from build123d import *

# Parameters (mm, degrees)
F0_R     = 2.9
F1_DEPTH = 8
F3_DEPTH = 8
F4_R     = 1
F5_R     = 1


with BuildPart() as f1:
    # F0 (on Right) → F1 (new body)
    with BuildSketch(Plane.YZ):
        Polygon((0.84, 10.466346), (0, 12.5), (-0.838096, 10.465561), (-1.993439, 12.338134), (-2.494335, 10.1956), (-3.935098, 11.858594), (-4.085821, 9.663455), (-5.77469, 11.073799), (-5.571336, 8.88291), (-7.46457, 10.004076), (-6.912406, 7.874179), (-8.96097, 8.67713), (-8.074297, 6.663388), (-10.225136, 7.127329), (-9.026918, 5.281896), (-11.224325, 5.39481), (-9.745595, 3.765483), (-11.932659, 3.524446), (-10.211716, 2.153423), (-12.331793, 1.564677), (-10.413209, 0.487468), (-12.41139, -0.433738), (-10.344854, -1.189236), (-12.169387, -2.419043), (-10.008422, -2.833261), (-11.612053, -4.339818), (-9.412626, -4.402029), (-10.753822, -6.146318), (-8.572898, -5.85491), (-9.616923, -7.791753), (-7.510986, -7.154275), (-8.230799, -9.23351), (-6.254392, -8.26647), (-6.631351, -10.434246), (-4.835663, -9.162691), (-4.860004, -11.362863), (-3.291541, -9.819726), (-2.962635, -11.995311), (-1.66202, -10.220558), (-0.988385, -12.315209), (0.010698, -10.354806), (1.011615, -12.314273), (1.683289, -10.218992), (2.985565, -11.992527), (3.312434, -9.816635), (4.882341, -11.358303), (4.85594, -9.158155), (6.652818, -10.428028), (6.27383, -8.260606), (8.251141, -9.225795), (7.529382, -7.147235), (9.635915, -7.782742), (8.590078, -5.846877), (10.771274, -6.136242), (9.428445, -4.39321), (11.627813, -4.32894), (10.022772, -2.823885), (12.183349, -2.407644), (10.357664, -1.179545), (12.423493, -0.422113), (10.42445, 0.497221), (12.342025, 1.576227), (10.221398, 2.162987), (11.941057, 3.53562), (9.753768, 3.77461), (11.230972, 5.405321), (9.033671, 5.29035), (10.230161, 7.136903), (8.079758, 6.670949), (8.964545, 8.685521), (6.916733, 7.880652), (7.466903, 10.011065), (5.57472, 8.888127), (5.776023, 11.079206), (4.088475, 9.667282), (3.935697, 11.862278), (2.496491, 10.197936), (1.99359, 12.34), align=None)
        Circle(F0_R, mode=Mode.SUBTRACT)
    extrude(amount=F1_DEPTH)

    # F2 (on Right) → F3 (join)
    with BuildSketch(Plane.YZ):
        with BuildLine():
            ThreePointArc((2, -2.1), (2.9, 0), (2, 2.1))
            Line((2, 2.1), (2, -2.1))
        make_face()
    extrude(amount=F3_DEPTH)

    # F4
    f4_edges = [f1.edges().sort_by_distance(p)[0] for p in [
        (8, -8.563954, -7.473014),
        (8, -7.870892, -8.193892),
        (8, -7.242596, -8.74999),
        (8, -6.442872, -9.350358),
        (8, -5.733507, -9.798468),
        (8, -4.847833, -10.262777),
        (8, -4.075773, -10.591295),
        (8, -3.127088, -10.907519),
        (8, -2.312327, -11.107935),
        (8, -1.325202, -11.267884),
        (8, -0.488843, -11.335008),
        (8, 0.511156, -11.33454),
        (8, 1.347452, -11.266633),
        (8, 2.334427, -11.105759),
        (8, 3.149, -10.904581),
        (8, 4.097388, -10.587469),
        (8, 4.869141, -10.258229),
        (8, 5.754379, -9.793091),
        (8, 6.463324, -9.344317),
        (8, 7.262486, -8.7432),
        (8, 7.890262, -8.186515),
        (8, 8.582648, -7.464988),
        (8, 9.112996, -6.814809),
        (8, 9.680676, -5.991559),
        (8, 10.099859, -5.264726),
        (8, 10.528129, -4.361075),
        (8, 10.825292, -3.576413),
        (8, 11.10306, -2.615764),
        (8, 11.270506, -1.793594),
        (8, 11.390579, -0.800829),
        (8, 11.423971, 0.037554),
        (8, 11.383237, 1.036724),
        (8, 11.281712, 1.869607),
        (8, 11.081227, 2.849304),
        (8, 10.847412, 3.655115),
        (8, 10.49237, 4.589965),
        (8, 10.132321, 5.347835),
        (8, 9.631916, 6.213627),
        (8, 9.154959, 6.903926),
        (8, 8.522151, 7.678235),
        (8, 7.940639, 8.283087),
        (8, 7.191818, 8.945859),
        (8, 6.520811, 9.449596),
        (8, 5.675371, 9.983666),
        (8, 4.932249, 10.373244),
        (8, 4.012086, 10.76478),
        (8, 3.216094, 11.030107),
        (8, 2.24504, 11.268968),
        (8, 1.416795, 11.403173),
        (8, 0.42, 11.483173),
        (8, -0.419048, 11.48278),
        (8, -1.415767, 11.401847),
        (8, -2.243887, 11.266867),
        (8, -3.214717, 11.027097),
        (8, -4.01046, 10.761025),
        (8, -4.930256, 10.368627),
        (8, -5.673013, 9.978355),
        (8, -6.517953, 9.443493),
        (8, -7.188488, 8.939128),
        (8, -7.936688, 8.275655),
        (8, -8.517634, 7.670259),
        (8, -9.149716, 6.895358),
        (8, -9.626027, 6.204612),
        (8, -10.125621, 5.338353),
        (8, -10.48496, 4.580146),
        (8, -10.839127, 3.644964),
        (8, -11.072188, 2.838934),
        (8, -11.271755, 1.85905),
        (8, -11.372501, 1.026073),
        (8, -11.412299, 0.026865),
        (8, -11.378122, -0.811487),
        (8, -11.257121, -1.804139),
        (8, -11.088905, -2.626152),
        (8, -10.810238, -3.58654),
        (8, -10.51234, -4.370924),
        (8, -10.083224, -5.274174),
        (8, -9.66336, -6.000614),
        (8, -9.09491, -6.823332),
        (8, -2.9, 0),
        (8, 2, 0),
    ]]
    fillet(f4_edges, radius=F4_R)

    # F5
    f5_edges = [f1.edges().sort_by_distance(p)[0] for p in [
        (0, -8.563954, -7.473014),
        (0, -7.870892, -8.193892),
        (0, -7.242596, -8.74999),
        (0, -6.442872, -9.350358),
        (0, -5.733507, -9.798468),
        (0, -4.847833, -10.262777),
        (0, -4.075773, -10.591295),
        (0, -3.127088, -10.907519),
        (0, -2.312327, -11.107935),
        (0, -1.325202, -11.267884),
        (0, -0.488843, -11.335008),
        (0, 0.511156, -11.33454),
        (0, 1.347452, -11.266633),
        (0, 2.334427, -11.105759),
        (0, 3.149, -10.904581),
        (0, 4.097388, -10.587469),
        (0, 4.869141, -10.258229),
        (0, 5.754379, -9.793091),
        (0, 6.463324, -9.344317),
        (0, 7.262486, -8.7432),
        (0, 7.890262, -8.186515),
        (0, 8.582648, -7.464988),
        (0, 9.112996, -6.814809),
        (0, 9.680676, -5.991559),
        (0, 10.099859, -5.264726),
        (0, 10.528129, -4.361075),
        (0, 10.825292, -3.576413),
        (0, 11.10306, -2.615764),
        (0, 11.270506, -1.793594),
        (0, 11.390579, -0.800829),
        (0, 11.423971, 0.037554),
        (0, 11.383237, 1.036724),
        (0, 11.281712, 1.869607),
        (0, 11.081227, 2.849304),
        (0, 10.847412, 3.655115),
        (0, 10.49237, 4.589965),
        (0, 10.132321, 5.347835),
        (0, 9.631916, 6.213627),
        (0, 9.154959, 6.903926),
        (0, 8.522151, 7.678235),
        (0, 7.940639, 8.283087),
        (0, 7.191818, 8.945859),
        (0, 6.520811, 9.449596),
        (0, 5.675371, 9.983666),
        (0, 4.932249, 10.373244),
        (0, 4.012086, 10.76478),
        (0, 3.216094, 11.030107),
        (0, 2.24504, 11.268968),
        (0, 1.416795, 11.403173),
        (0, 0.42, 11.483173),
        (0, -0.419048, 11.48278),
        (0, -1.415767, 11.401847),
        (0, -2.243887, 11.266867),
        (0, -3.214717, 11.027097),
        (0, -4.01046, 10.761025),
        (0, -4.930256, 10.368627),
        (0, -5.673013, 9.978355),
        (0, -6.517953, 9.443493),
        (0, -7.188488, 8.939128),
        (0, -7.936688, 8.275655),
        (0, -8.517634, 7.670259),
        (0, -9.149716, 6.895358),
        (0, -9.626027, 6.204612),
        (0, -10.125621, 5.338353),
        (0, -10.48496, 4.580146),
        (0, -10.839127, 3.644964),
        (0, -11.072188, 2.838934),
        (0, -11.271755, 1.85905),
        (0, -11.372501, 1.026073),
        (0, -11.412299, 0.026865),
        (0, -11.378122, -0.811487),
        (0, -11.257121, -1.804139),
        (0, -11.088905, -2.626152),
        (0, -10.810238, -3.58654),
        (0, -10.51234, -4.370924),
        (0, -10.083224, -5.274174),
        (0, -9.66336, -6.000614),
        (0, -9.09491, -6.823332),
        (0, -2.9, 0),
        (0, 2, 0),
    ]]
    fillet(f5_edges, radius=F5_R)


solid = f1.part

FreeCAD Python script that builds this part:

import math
import FreeCAD as App
import Part
import Sketcher
from FreeCAD import Vector
Q = App.Units.Quantity


def edges_at(feature, points):
    """Names of the edges that pass closest to the given points."""
    edges = feature.Shape.Edges
    near = lambda p: min(range(len(edges)), key=lambda i: edges[i].distToShape(Part.Vertex(*p))[0])
    return sorted({f"Edge{near(p) + 1}" for p in points})

doc = App.newDocument("Part")
body = doc.addObject("PartDesign::Body", "Body")

# Sketch on YZ plane
sketch1 = body.newObject("Sketcher::SketchObject", "Sketch")
sketch1.AttachmentSupport = (doc.getObject("YZ_Plane"), [""])
sketch1.MapMode = "FlatFace"
sketch1.addGeometry(Part.LineSegment(Vector(0.84, 10.466346, 0), Vector(0, 12.5, 0)), False)
sketch1.addGeometry(Part.LineSegment(Vector(0, 12.5, 0), Vector(-0.838096, 10.465561, 0)), False)
sketch1.addGeometry(Part.LineSegment(Vector(-0.838096, 10.465561, 0), Vector(-1.993439, 12.338134, 0)), False)
sketch1.addGeometry(Part.LineSegment(Vector(-1.993439, 12.338134, 0), Vector(-2.494335, 10.1956, 0)), False)
sketch1.addGeometry(Part.LineSegment(Vector(-2.494335, 10.1956, 0), Vector(-3.935098, 11.858594, 0)), False)
sketch1.addGeometry(Part.LineSegment(Vector(-3.935098, 11.858594, 0), Vector(-4.085821, 9.663455, 0)), False)
sketch1.addGeometry(Part.LineSegment(Vector(-4.085821, 9.663455, 0), Vector(-5.77469, 11.073799, 0)), False)
sketch1.addGeometry(Part.LineSegment(Vector(-5.77469, 11.073799, 0), Vector(-5.571336, 8.88291, 0)), False)
sketch1.addGeometry(Part.LineSegment(Vector(-5.571336, 8.88291, 0), Vector(-7.46457, 10.004076, 0)), False)
sketch1.addGeometry(Part.LineSegment(Vector(-7.46457, 10.004076, 0), Vector(-6.912406, 7.874179, 0)), False)
sketch1.addGeometry(Part.LineSegment(Vector(-6.912406, 7.874179, 0), Vector(-8.96097, 8.67713, 0)), False)
sketch1.addGeometry(Part.LineSegment(Vector(-8.96097, 8.67713, 0), Vector(-8.074297, 6.663388, 0)), False)
sketch1.addGeometry(Part.LineSegment(Vector(-8.074297, 6.663388, 0), Vector(-10.225136, 7.127329, 0)), False)
sketch1.addGeometry(Part.LineSegment(Vector(-10.225136, 7.127329, 0), Vector(-9.026918, 5.281896, 0)), False)
sketch1.addGeometry(Part.LineSegment(Vector(-9.026918, 5.281896, 0), Vector(-11.224325, 5.39481, 0)), False)
sketch1.addGeometry(Part.LineSegment(Vector(-11.224325, 5.39481, 0), Vector(-9.745595, 3.765483, 0)), False)
sketch1.addGeometry(Part.LineSegment(Vector(-9.745595, 3.765483, 0), Vector(-11.932659, 3.524446, 0)), False)
sketch1.addGeometry(Part.LineSegment(Vector(-11.932659, 3.524446, 0), Vector(-10.211716, 2.153423, 0)), False)
sketch1.addGeometry(Part.LineSegment(Vector(-10.211716, 2.153423, 0), Vector(-12.331793, 1.564677, 0)), False)
sketch1.addGeometry(Part.LineSegment(Vector(-12.331793, 1.564677, 0), Vector(-10.413209, 0.487468, 0)), False)
sketch1.addGeometry(Part.LineSegment(Vector(-10.413209, 0.487468, 0), Vector(-12.41139, -0.433738, 0)), False)
sketch1.addGeometry(Part.LineSegment(Vector(-12.41139, -0.433738, 0), Vector(-10.344854, -1.189236, 0)), False)
sketch1.addGeometry(Part.LineSegment(Vector(-10.344854, -1.189236, 0), Vector(-12.169387, -2.419043, 0)), False)
sketch1.addGeometry(Part.LineSegment(Vector(-12.169387, -2.419043, 0), Vector(-10.008422, -2.833261, 0)), False)
sketch1.addGeometry(Part.LineSegment(Vector(-10.008422, -2.833261, 0), Vector(-11.612053, -4.339818, 0)), False)
sketch1.addGeometry(Part.LineSegment(Vector(-11.612053, -4.339818, 0), Vector(-9.412626, -4.402029, 0)), False)
sketch1.addGeometry(Part.LineSegment(Vector(-9.412626, -4.402029, 0), Vector(-10.753822, -6.146318, 0)), False)
sketch1.addGeometry(Part.LineSegment(Vector(-10.753822, -6.146318, 0), Vector(-8.572898, -5.85491, 0)), False)
sketch1.addGeometry(Part.LineSegment(Vector(-8.572898, -5.85491, 0), Vector(-9.616923, -7.791753, 0)), False)
sketch1.addGeometry(Part.LineSegment(Vector(-9.616923, -7.791753, 0), Vector(-7.510986, -7.154275, 0)), False)
sketch1.addGeometry(Part.LineSegment(Vector(-7.510986, -7.154275, 0), Vector(-8.230799, -9.23351, 0)), False)
sketch1.addGeometry(Part.LineSegment(Vector(-8.230799, -9.23351, 0), Vector(-6.254392, -8.26647, 0)), False)
sketch1.addGeometry(Part.LineSegment(Vector(-6.254392, -8.26647, 0), Vector(-6.631351, -10.434246, 0)), False)
sketch1.addGeometry(Part.LineSegment(Vector(-6.631351, -10.434246, 0), Vector(-4.835663, -9.162691, 0)), False)
sketch1.addGeometry(Part.LineSegment(Vector(-4.835663, -9.162691, 0), Vector(-4.860004, -11.362863, 0)), False)
sketch1.addGeometry(Part.LineSegment(Vector(-4.860004, -11.362863, 0), Vector(-3.291541, -9.819726, 0)), False)
sketch1.addGeometry(Part.LineSegment(Vector(-3.291541, -9.819726, 0), Vector(-2.962635, -11.995311, 0)), False)
sketch1.addGeometry(Part.LineSegment(Vector(-2.962635, -11.995311, 0), Vector(-1.66202, -10.220558, 0)), False)
sketch1.addGeometry(Part.LineSegment(Vector(-1.66202, -10.220558, 0), Vector(-0.988385, -12.315209, 0)), False)
sketch1.addGeometry(Part.LineSegment(Vector(-0.988385, -12.315209, 0), Vector(0.010698, -10.354806, 0)), False)
sketch1.addGeometry(Part.LineSegment(Vector(0.010698, -10.354806, 0), Vector(1.011615, -12.314273, 0)), False)
sketch1.addGeometry(Part.LineSegment(Vector(1.011615, -12.314273, 0), Vector(1.683289, -10.218992, 0)), False)
sketch1.addGeometry(Part.LineSegment(Vector(1.683289, -10.218992, 0), Vector(2.985565, -11.992527, 0)), False)
sketch1.addGeometry(Part.LineSegment(Vector(2.985565, -11.992527, 0), Vector(3.312434, -9.816635, 0)), False)
sketch1.addGeometry(Part.LineSegment(Vector(3.312434, -9.816635, 0), Vector(4.882341, -11.358303, 0)), False)
sketch1.addGeometry(Part.LineSegment(Vector(4.882341, -11.358303, 0), Vector(4.85594, -9.158155, 0)), False)
sketch1.addGeometry(Part.LineSegment(Vector(4.85594, -9.158155, 0), Vector(6.652818, -10.428028, 0)), False)
sketch1.addGeometry(Part.LineSegment(Vector(6.652818, -10.428028, 0), Vector(6.27383, -8.260606, 0)), False)
sketch1.addGeometry(Part.LineSegment(Vector(6.27383, -8.260606, 0), Vector(8.251141, -9.225795, 0)), False)
sketch1.addGeometry(Part.LineSegment(Vector(8.251141, -9.225795, 0), Vector(7.529382, -7.147235, 0)), False)
sketch1.addGeometry(Part.LineSegment(Vector(7.529382, -7.147235, 0), Vector(9.635915, -7.782742, 0)), False)
sketch1.addGeometry(Part.LineSegment(Vector(9.635915, -7.782742, 0), Vector(8.590078, -5.846877, 0)), False)
sketch1.addGeometry(Part.LineSegment(Vector(8.590078, -5.846877, 0), Vector(10.771274, -6.136242, 0)), False)
sketch1.addGeometry(Part.LineSegment(Vector(10.771274, -6.136242, 0), Vector(9.428445, -4.39321, 0)), False)
sketch1.addGeometry(Part.LineSegment(Vector(9.428445, -4.39321, 0), Vector(11.627813, -4.32894, 0)), False)
sketch1.addGeometry(Part.LineSegment(Vector(11.627813, -4.32894, 0), Vector(10.022772, -2.823885, 0)), False)
sketch1.addGeometry(Part.LineSegment(Vector(10.022772, -2.823885, 0), Vector(12.183349, -2.407644, 0)), False)
sketch1.addGeometry(Part.LineSegment(Vector(12.183349, -2.407644, 0), Vector(10.357664, -1.179545, 0)), False)
sketch1.addGeometry(Part.LineSegment(Vector(10.357664, -1.179545, 0), Vector(12.423493, -0.422113, 0)), False)
sketch1.addGeometry(Part.LineSegment(Vector(12.423493, -0.422113, 0), Vector(10.42445, 0.497221, 0)), False)
sketch1.addGeometry(Part.LineSegment(Vector(10.42445, 0.497221, 0), Vector(12.342025, 1.576227, 0)), False)
sketch1.addGeometry(Part.LineSegment(Vector(12.342025, 1.576227, 0), Vector(10.221398, 2.162987, 0)), False)
sketch1.addGeometry(Part.LineSegment(Vector(10.221398, 2.162987, 0), Vector(11.941057, 3.53562, 0)), False)
sketch1.addGeometry(Part.LineSegment(Vector(11.941057, 3.53562, 0), Vector(9.753768, 3.77461, 0)), False)
sketch1.addGeometry(Part.LineSegment(Vector(9.753768, 3.77461, 0), Vector(11.230972, 5.405321, 0)), False)
sketch1.addGeometry(Part.LineSegment(Vector(11.230972, 5.405321, 0), Vector(9.033671, 5.29035, 0)), False)
sketch1.addGeometry(Part.LineSegment(Vector(9.033671, 5.29035, 0), Vector(10.230161, 7.136903, 0)), False)
sketch1.addGeometry(Part.LineSegment(Vector(10.230161, 7.136903, 0), Vector(8.079758, 6.670949, 0)), False)
sketch1.addGeometry(Part.LineSegment(Vector(8.079758, 6.670949, 0), Vector(8.964545, 8.685521, 0)), False)
sketch1.addGeometry(Part.LineSegment(Vector(8.964545, 8.685521, 0), Vector(6.916733, 7.880652, 0)), False)
sketch1.addGeometry(Part.LineSegment(Vector(6.916733, 7.880652, 0), Vector(7.466903, 10.011065, 0)), False)
sketch1.addGeometry(Part.LineSegment(Vector(7.466903, 10.011065, 0), Vector(5.57472, 8.888127, 0)), False)
sketch1.addGeometry(Part.LineSegment(Vector(5.57472, 8.888127, 0), Vector(5.776023, 11.079206, 0)), False)
sketch1.addGeometry(Part.LineSegment(Vector(5.776023, 11.079206, 0), Vector(4.088475, 9.667282, 0)), False)
sketch1.addGeometry(Part.LineSegment(Vector(4.088475, 9.667282, 0), Vector(3.935697, 11.862278, 0)), False)
sketch1.addGeometry(Part.LineSegment(Vector(3.935697, 11.862278, 0), Vector(2.496491, 10.197936, 0)), False)
sketch1.addGeometry(Part.LineSegment(Vector(2.496491, 10.197936, 0), Vector(1.99359, 12.34, 0)), False)
sketch1.addGeometry(Part.LineSegment(Vector(1.99359, 12.34, 0), Vector(0.84, 10.466346, 0)), False)
sketch1.addGeometry(Part.Circle(Vector(0, 0, 0), Vector(0, 0, 1), 2.9), False)
sketch1.addConstraint(Sketcher.Constraint("Coincident", 0, 2, 1, 1))
sketch1.addConstraint(Sketcher.Constraint("Coincident", 1, 2, 2, 1))
sketch1.addConstraint(Sketcher.Constraint("Coincident", 2, 2, 3, 1))
sketch1.addConstraint(Sketcher.Constraint("Coincident", 3, 2, 4, 1))
sketch1.addConstraint(Sketcher.Constraint("Coincident", 4, 2, 5, 1))
sketch1.addConstraint(Sketcher.Constraint("Coincident", 5, 2, 6, 1))
sketch1.addConstraint(Sketcher.Constraint("Coincident", 6, 2, 7, 1))
sketch1.addConstraint(Sketcher.Constraint("Coincident", 7, 2, 8, 1))
sketch1.addConstraint(Sketcher.Constraint("Coincident", 8, 2, 9, 1))
sketch1.addConstraint(Sketcher.Constraint("Coincident", 9, 2, 10, 1))
sketch1.addConstraint(Sketcher.Constraint("Coincident", 10, 2, 11, 1))
sketch1.addConstraint(Sketcher.Constraint("Coincident", 11, 2, 12, 1))
sketch1.addConstraint(Sketcher.Constraint("Coincident", 12, 2, 13, 1))
sketch1.addConstraint(Sketcher.Constraint("Coincident", 13, 2, 14, 1))
sketch1.addConstraint(Sketcher.Constraint("Coincident", 14, 2, 15, 1))
sketch1.addConstraint(Sketcher.Constraint("Coincident", 15, 2, 16, 1))
sketch1.addConstraint(Sketcher.Constraint("Coincident", 16, 2, 17, 1))
sketch1.addConstraint(Sketcher.Constraint("Coincident", 17, 2, 18, 1))
sketch1.addConstraint(Sketcher.Constraint("Coincident", 18, 2, 19, 1))
sketch1.addConstraint(Sketcher.Constraint("Coincident", 19, 2, 20, 1))
sketch1.addConstraint(Sketcher.Constraint("Coincident", 20, 2, 21, 1))
sketch1.addConstraint(Sketcher.Constraint("Coincident", 21, 2, 22, 1))
sketch1.addConstraint(Sketcher.Constraint("Coincident", 22, 2, 23, 1))
sketch1.addConstraint(Sketcher.Constraint("Coincident", 23, 2, 24, 1))
sketch1.addConstraint(Sketcher.Constraint("Coincident", 24, 2, 25, 1))
sketch1.addConstraint(Sketcher.Constraint("Coincident", 25, 2, 26, 1))
sketch1.addConstraint(Sketcher.Constraint("Coincident", 26, 2, 27, 1))
sketch1.addConstraint(Sketcher.Constraint("Coincident", 27, 2, 28, 1))
sketch1.addConstraint(Sketcher.Constraint("Coincident", 28, 2, 29, 1))
sketch1.addConstraint(Sketcher.Constraint("Coincident", 29, 2, 30, 1))
sketch1.addConstraint(Sketcher.Constraint("Coincident", 30, 2, 31, 1))
sketch1.addConstraint(Sketcher.Constraint("Coincident", 31, 2, 32, 1))
sketch1.addConstraint(Sketcher.Constraint("Coincident", 32, 2, 33, 1))
sketch1.addConstraint(Sketcher.Constraint("Coincident", 33, 2, 34, 1))
sketch1.addConstraint(Sketcher.Constraint("Coincident", 34, 2, 35, 1))
sketch1.addConstraint(Sketcher.Constraint("Coincident", 35, 2, 36, 1))
sketch1.addConstraint(Sketcher.Constraint("Coincident", 36, 2, 37, 1))
sketch1.addConstraint(Sketcher.Constraint("Coincident", 37, 2, 38, 1))
sketch1.addConstraint(Sketcher.Constraint("Coincident", 38, 2, 39, 1))
sketch1.addConstraint(Sketcher.Constraint("Coincident", 39, 2, 40, 1))
sketch1.addConstraint(Sketcher.Constraint("Coincident", 40, 2, 41, 1))
sketch1.addConstraint(Sketcher.Constraint("Coincident", 41, 2, 42, 1))
sketch1.addConstraint(Sketcher.Constraint("Coincident", 42, 2, 43, 1))
sketch1.addConstraint(Sketcher.Constraint("Coincident", 43, 2, 44, 1))
sketch1.addConstraint(Sketcher.Constraint("Coincident", 44, 2, 45, 1))
sketch1.addConstraint(Sketcher.Constraint("Coincident", 45, 2, 46, 1))
sketch1.addConstraint(Sketcher.Constraint("Coincident", 46, 2, 47, 1))
sketch1.addConstraint(Sketcher.Constraint("Coincident", 47, 2, 48, 1))
sketch1.addConstraint(Sketcher.Constraint("Coincident", 48, 2, 49, 1))
sketch1.addConstraint(Sketcher.Constraint("Coincident", 49, 2, 50, 1))
sketch1.addConstraint(Sketcher.Constraint("Coincident", 50, 2, 51, 1))
sketch1.addConstraint(Sketcher.Constraint("Coincident", 51, 2, 52, 1))
sketch1.addConstraint(Sketcher.Constraint("Coincident", 52, 2, 53, 1))
sketch1.addConstraint(Sketcher.Constraint("Coincident", 53, 2, 54, 1))
sketch1.addConstraint(Sketcher.Constraint("Coincident", 54, 2, 55, 1))
sketch1.addConstraint(Sketcher.Constraint("Coincident", 55, 2, 56, 1))
sketch1.addConstraint(Sketcher.Constraint("Coincident", 56, 2, 57, 1))
sketch1.addConstraint(Sketcher.Constraint("Coincident", 57, 2, 58, 1))
sketch1.addConstraint(Sketcher.Constraint("Coincident", 58, 2, 59, 1))
sketch1.addConstraint(Sketcher.Constraint("Coincident", 59, 2, 60, 1))
sketch1.addConstraint(Sketcher.Constraint("Coincident", 60, 2, 61, 1))
sketch1.addConstraint(Sketcher.Constraint("Coincident", 61, 2, 62, 1))
sketch1.addConstraint(Sketcher.Constraint("Coincident", 62, 2, 63, 1))
sketch1.addConstraint(Sketcher.Constraint("Coincident", 63, 2, 64, 1))
sketch1.addConstraint(Sketcher.Constraint("Coincident", 64, 2, 65, 1))
sketch1.addConstraint(Sketcher.Constraint("Coincident", 65, 2, 66, 1))
sketch1.addConstraint(Sketcher.Constraint("Coincident", 66, 2, 67, 1))
sketch1.addConstraint(Sketcher.Constraint("Coincident", 67, 2, 68, 1))
sketch1.addConstraint(Sketcher.Constraint("Coincident", 68, 2, 69, 1))
sketch1.addConstraint(Sketcher.Constraint("Coincident", 69, 2, 70, 1))
sketch1.addConstraint(Sketcher.Constraint("Coincident", 70, 2, 71, 1))
sketch1.addConstraint(Sketcher.Constraint("Coincident", 71, 2, 72, 1))
sketch1.addConstraint(Sketcher.Constraint("Coincident", 72, 2, 73, 1))
sketch1.addConstraint(Sketcher.Constraint("Coincident", 73, 2, 74, 1))
sketch1.addConstraint(Sketcher.Constraint("Coincident", 74, 2, 75, 1))
sketch1.addConstraint(Sketcher.Constraint("Coincident", 75, 2, 76, 1))
sketch1.addConstraint(Sketcher.Constraint("Coincident", 76, 2, 77, 1))
sketch1.addConstraint(Sketcher.Constraint("Coincident", 77, 2, 0, 1))
sketch1.addConstraint(Sketcher.Constraint("Coincident", 78, 3, -1, 1))
sketch1.addConstraint(Sketcher.Constraint("PointOnObject", 0, 2, -2))
sketch1.addConstraint(Sketcher.Constraint("Diameter", 78, Q("5.8 mm")))
sketch1.addConstraint(Sketcher.Constraint("DistanceY", -1, 1, 0, 2, Q("12.5 mm")))
sketch1.addConstraint(Sketcher.Constraint("DistanceY", -1, 1, 76, 2, Q("12.34 mm")))
sketch1.addConstraint(Sketcher.Constraint("DistanceX", -1, 1, 77, 2, Q("0.84 mm")))
sketch1.addConstraint(Sketcher.Constraint("DistanceY", -1, 1, 3, 2, Q("10.1956 mm")))
sketch1.addConstraint(Sketcher.Constraint("DistanceX", 4, 2, -1, 1, Q("3.935098 mm")))
sketch1.addConstraint(Sketcher.Constraint("DistanceY", -1, 1, 6, 2, Q("11.073799 mm")))
sketch1.addConstraint(Sketcher.Constraint("DistanceX", 30, 2, -1, 1, Q("8.230799 mm")))
sketch1.addConstraint(Sketcher.Constraint("DistanceX", -1, 1, 61, 2, Q("10.221398 mm")))
sketch1.addConstraint(Sketcher.Constraint("DistanceY", -1, 1, 1, 2, Q("10.465561 mm")))
sketch1.addConstraint(Sketcher.Constraint("DistanceX", 2, 2, -1, 1, Q("1.993439 mm")))
sketch1.addConstraint(Sketcher.Constraint("DistanceX", 5, 2, -1, 1, Q("4.085821 mm")))
sketch1.addConstraint(Sketcher.Constraint("DistanceX", 6, 2, -1, 1, Q("5.77469 mm")))
sketch1.addConstraint(Sketcher.Constraint("DistanceY", -1, 1, 7, 2, Q("8.88291 mm")))
sketch1.addConstraint(Sketcher.Constraint("DistanceX", 8, 2, -1, 1, Q("7.46457 mm")))
sketch1.addConstraint(Sketcher.Constraint("DistanceY", -1, 1, 9, 2, Q("7.874179 mm")))
sketch1.addConstraint(Sketcher.Constraint("DistanceX", 10, 2, -1, 1, Q("8.96097 mm")))
sketch1.addConstraint(Sketcher.Constraint("DistanceY", -1, 1, 10, 2, Q("8.67713 mm")))
sketch1.addConstraint(Sketcher.Constraint("DistanceY", -1, 1, 11, 2, Q("6.663388 mm")))
sketch1.addConstraint(Sketcher.Constraint("DistanceY", -1, 1, 12, 2, Q("7.127329 mm")))
sketch1.addConstraint(Sketcher.Constraint("DistanceY", -1, 1, 14, 2, Q("5.39481 mm")))
sketch1.addConstraint(Sketcher.Constraint("DistanceX", 16, 2, -1, 1, Q("11.932659 mm")))
sketch1.addConstraint(Sketcher.Constraint("DistanceX", 19, 2, -1, 1, Q("10.413209 mm")))
sketch1.addConstraint(Sketcher.Constraint("DistanceX", 20, 2, -1, 1, Q("12.41139 mm")))
sketch1.addConstraint(Sketcher.Constraint("DistanceY", 23, 2, -1, 1, Q("2.833261 mm")))
sketch1.addConstraint(Sketcher.Constraint("DistanceY", 24, 2, -1, 1, Q("4.339818 mm")))
sketch1.addConstraint(Sketcher.Constraint("DistanceY", 25, 2, -1, 1, Q("4.402029 mm")))
sketch1.addConstraint(Sketcher.Constraint("DistanceY", 27, 2, -1, 1, Q("5.85491 mm")))
sketch1.addConstraint(Sketcher.Constraint("DistanceY", 30, 2, -1, 1, Q("9.23351 mm")))
sketch1.addConstraint(Sketcher.Constraint("DistanceY", 31, 2, -1, 1, Q("8.26647 mm")))
sketch1.addConstraint(Sketcher.Constraint("DistanceX", 32, 2, -1, 1, Q("6.631351 mm")))
sketch1.addConstraint(Sketcher.Constraint("DistanceY", 33, 2, -1, 1, Q("9.162691 mm")))
sketch1.addConstraint(Sketcher.Constraint("DistanceX", 35, 2, -1, 1, Q("3.291541 mm")))
sketch1.addConstraint(Sketcher.Constraint("DistanceY", 36, 2, -1, 1, Q("11.995311 mm")))
sketch1.addConstraint(Sketcher.Constraint("DistanceX", 37, 2, -1, 1, Q("1.66202 mm")))
sketch1.addConstraint(Sketcher.Constraint("DistanceY", 38, 2, -1, 1, Q("12.315209 mm")))
sketch1.addConstraint(Sketcher.Constraint("DistanceX", -1, 1, 41, 2, Q("1.683289 mm")))
sketch1.addConstraint(Sketcher.Constraint("DistanceX", -1, 1, 44, 2, Q("4.882341 mm")))
sketch1.addConstraint(Sketcher.Constraint("DistanceX", -1, 1, 45, 2, Q("4.85594 mm")))
sketch1.addConstraint(Sketcher.Constraint("DistanceX", -1, 1, 47, 2, Q("6.27383 mm")))
sketch1.addConstraint(Sketcher.Constraint("DistanceX", -1, 1, 48, 2, Q("8.251141 mm")))
sketch1.addConstraint(Sketcher.Constraint("DistanceY", 50, 2, -1, 1, Q("7.782742 mm")))
sketch1.addConstraint(Sketcher.Constraint("DistanceY", 53, 2, -1, 1, Q("4.39321 mm")))
sketch1.addConstraint(Sketcher.Constraint("DistanceY", 54, 2, -1, 1, Q("4.32894 mm")))
sketch1.addConstraint(Sketcher.Constraint("DistanceX", -1, 1, 56, 2, Q("12.183349 mm")))
sketch1.addConstraint(Sketcher.Constraint("DistanceX", -1, 1, 59, 2, Q("10.42445 mm")))
sketch1.addConstraint(Sketcher.Constraint("DistanceY", -1, 1, 59, 2, Q("0.497221 mm")))
sketch1.addConstraint(Sketcher.Constraint("DistanceY", -1, 1, 62, 2, Q("3.53562 mm")))
sketch1.addConstraint(Sketcher.Constraint("DistanceX", -1, 1, 63, 2, Q("9.753768 mm")))
sketch1.addConstraint(Sketcher.Constraint("DistanceY", -1, 1, 63, 2, Q("3.77461 mm")))
sketch1.addConstraint(Sketcher.Constraint("DistanceY", -1, 1, 64, 2, Q("5.405321 mm")))
sketch1.addConstraint(Sketcher.Constraint("DistanceX", -1, 1, 65, 2, Q("9.033671 mm")))
sketch1.addConstraint(Sketcher.Constraint("DistanceY", -1, 1, 65, 2, Q("5.29035 mm")))
sketch1.addConstraint(Sketcher.Constraint("DistanceX", -1, 1, 66, 2, Q("10.230161 mm")))
sketch1.addConstraint(Sketcher.Constraint("DistanceY", -1, 1, 67, 2, Q("6.670949 mm")))
sketch1.addConstraint(Sketcher.Constraint("DistanceY", -1, 1, 68, 2, Q("8.685521 mm")))
sketch1.addConstraint(Sketcher.Constraint("DistanceX", -1, 1, 71, 2, Q("5.57472 mm")))
sketch1.addConstraint(Sketcher.Constraint("DistanceX", -1, 1, 75, 2, Q("2.496491 mm")))
sketch1.addConstraint(Sketcher.Constraint("DistanceX", -1, 1, 76, 2, Q("1.99359 mm")))
sketch1.addConstraint(Sketcher.Constraint("Distance", 0, Q("2.200306 mm")))
sketch1.addConstraint(Sketcher.Constraint("Distance", 1, Q("2.200306 mm")))
sketch1.addConstraint(Sketcher.Constraint("Distance", 2, Q("2.200306 mm")))
sketch1.addConstraint(Sketcher.Constraint("Distance", 3, Q("2.200307 mm")))
sketch1.addConstraint(Sketcher.Constraint("Distance", 4, Q("2.200306 mm")))
sketch1.addConstraint(Sketcher.Constraint("Distance", 5, Q("2.200307 mm")))
sketch1.addConstraint(Sketcher.Constraint("Distance", 7, Q("2.200306 mm")))
sketch1.addConstraint(Sketcher.Constraint("Distance", 8, Q("2.200306 mm")))
sketch1.addConstraint(Sketcher.Constraint("Distance", 9, Q("2.200306 mm")))
sketch1.addConstraint(Sketcher.Constraint("Distance", 11, Q("2.200306 mm")))
sketch1.addConstraint(Sketcher.Constraint("Distance", 12, Q("2.200307 mm")))
sketch1.addConstraint(Sketcher.Constraint("Distance", 13, Q("2.200307 mm")))
sketch1.addConstraint(Sketcher.Constraint("Distance", 14, Q("2.200306 mm")))
sketch1.addConstraint(Sketcher.Constraint("Distance", 15, Q("2.200307 mm")))
sketch1.addConstraint(Sketcher.Constraint("Distance", 16, Q("2.200306 mm")))
sketch1.addConstraint(Sketcher.Constraint("Distance", 17, Q("2.200307 mm")))
sketch1.addConstraint(Sketcher.Constraint("Distance", 18, Q("2.200306 mm")))
sketch1.addConstraint(Sketcher.Constraint("Distance", 19, Q("2.200305 mm")))
sketch1.addConstraint(Sketcher.Constraint("Distance", 20, Q("2.200306 mm")))
sketch1.addConstraint(Sketcher.Constraint("Distance", 21, Q("2.200306 mm")))
sketch1.addConstraint(Sketcher.Constraint("Distance", 22, Q("2.200306 mm")))
sketch1.addConstraint(Sketcher.Constraint("Distance", 23, Q("2.200306 mm")))
sketch1.addConstraint(Sketcher.Constraint("Distance", 24, Q("2.200306 mm")))
sketch1.addConstraint(Sketcher.Constraint("Distance", 25, Q("2.200307 mm")))
sketch1.addConstraint(Sketcher.Constraint("Distance", 26, Q("2.200307 mm")))
sketch1.addConstraint(Sketcher.Constraint("Distance", 27, Q("2.200306 mm")))
sketch1.addConstraint(Sketcher.Constraint("Distance", 28, Q("2.200307 mm")))
sketch1.addConstraint(Sketcher.Constraint("Distance", 29, Q("2.200307 mm")))
sketch1.addConstraint(Sketcher.Constraint("Distance", 30, Q("2.200307 mm")))
sketch1.addConstraint(Sketcher.Constraint("Distance", 31, Q("2.200307 mm")))
sketch1.addConstraint(Sketcher.Constraint("Distance", 32, Q("2.200307 mm")))
sketch1.addConstraint(Sketcher.Constraint("Distance", 33, Q("2.200306 mm")))
sketch1.addConstraint(Sketcher.Constraint("Distance", 34, Q("2.200307 mm")))
sketch1.addConstraint(Sketcher.Constraint("Distance", 35, Q("2.200306 mm")))
sketch1.addConstraint(Sketcher.Constraint("Distance", 36, Q("2.200307 mm")))
sketch1.addConstraint(Sketcher.Constraint("Distance", 37, Q("2.200306 mm")))
sketch1.addConstraint(Sketcher.Constraint("Distance", 38, Q("2.200306 mm")))
sketch1.addConstraint(Sketcher.Constraint("Distance", 39, Q("2.200306 mm")))
sketch1.addConstraint(Sketcher.Constraint("Distance", 40, Q("2.200306 mm")))
sketch1.addConstraint(Sketcher.Constraint("Distance", 41, Q("2.200306 mm")))
sketch1.addConstraint(Sketcher.Constraint("Distance", 42, Q("2.200307 mm")))
sketch1.addConstraint(Sketcher.Constraint("Distance", 43, Q("2.200307 mm")))
sketch1.addConstraint(Sketcher.Constraint("Distance", 44, Q("2.200306 mm")))
sketch1.addConstraint(Sketcher.Constraint("Distance", 45, Q("2.200306 mm")))
sketch1.addConstraint(Sketcher.Constraint("Distance", 46, Q("2.200306 mm")))
sketch1.addConstraint(Sketcher.Constraint("Distance", 47, Q("2.200307 mm")))
sketch1.addConstraint(Sketcher.Constraint("Distance", 48, Q("2.200306 mm")))
sketch1.addConstraint(Sketcher.Constraint("Distance", 49, Q("2.200306 mm")))
sketch1.addConstraint(Sketcher.Constraint("Distance", 50, Q("2.200307 mm")))
sketch1.addConstraint(Sketcher.Constraint("Distance", 51, Q("2.200306 mm")))
sketch1.addConstraint(Sketcher.Constraint("Distance", 52, Q("2.200306 mm")))
sketch1.addConstraint(Sketcher.Constraint("Distance", 53, Q("2.200307 mm")))
sketch1.addConstraint(Sketcher.Constraint("Distance", 54, Q("2.200307 mm")))
sketch1.addConstraint(Sketcher.Constraint("Distance", 55, Q("2.200306 mm")))
sketch1.addConstraint(Sketcher.Constraint("Distance", 56, Q("2.200307 mm")))
sketch1.addConstraint(Sketcher.Constraint("Distance", 57, Q("2.200307 mm")))
sketch1.addConstraint(Sketcher.Constraint("Distance", 58, Q("2.200307 mm")))
sketch1.addConstraint(Sketcher.Constraint("Distance", 59, Q("2.200306 mm")))
sketch1.addConstraint(Sketcher.Constraint("Distance", 60, Q("2.200306 mm")))
sketch1.addConstraint(Sketcher.Constraint("Distance", 61, Q("2.200306 mm")))
sketch1.addConstraint(Sketcher.Constraint("Distance", 62, Q("2.200306 mm")))
sketch1.addConstraint(Sketcher.Constraint("Distance", 63, Q("2.200307 mm")))
sketch1.addConstraint(Sketcher.Constraint("Distance", 64, Q("2.200307 mm")))
sketch1.addConstraint(Sketcher.Constraint("Distance", 66, Q("2.200306 mm")))
sketch1.addConstraint(Sketcher.Constraint("Distance", 67, Q("2.200306 mm")))
sketch1.addConstraint(Sketcher.Constraint("Distance", 68, Q("2.200306 mm")))
sketch1.addConstraint(Sketcher.Constraint("Distance", 69, Q("2.200306 mm")))
sketch1.addConstraint(Sketcher.Constraint("Distance", 70, Q("2.200306 mm")))
sketch1.addConstraint(Sketcher.Constraint("Distance", 71, Q("2.200306 mm")))
sketch1.addConstraint(Sketcher.Constraint("Distance", 72, Q("2.200307 mm")))
sketch1.addConstraint(Sketcher.Constraint("Distance", 73, Q("2.200306 mm")))
sketch1.addConstraint(Sketcher.Constraint("Distance", 74, Q("2.200306 mm")))
sketch1.addConstraint(Sketcher.Constraint("Distance", 75, Q("2.200306 mm")))
sketch1.addConstraint(Sketcher.Constraint("Distance", 76, Q("2.200306 mm")))
sketch1.addConstraint(Sketcher.Constraint("DistanceX", 13, 2, -1, 1, Q("9.026918 mm")))
sketch1.addConstraint(Sketcher.Constraint("DistanceX", 15, 2, -1, 1, Q("9.745595 mm")))
sketch1.addConstraint(Sketcher.Constraint("DistanceX", 17, 2, -1, 1, Q("10.211716 mm")))
sketch1.addConstraint(Sketcher.Constraint("DistanceX", 18, 2, -1, 1, Q("12.331793 mm")))
sketch1.addConstraint(Sketcher.Constraint("DistanceX", 21, 2, -1, 1, Q("10.344854 mm")))
sketch1.addConstraint(Sketcher.Constraint("DistanceX", 22, 2, -1, 1, Q("12.169387 mm")))
sketch1.addConstraint(Sketcher.Constraint("DistanceX", 26, 2, -1, 1, Q("10.753822 mm")))
sketch1.addConstraint(Sketcher.Constraint("DistanceX", 28, 2, -1, 1, Q("9.616923 mm")))
sketch1.addConstraint(Sketcher.Constraint("DistanceX", 34, 2, -1, 1, Q("4.860004 mm")))
sketch1.addConstraint(Sketcher.Constraint("DistanceX", -1, 1, 39, 2, Q("0.010698 mm")))
sketch1.addConstraint(Sketcher.Constraint("DistanceX", -1, 1, 40, 2, Q("1.011615 mm")))
sketch1.addConstraint(Sketcher.Constraint("DistanceX", -1, 1, 42, 2, Q("2.985565 mm")))
sketch1.addConstraint(Sketcher.Constraint("DistanceX", -1, 1, 43, 2, Q("3.312434 mm")))
sketch1.addConstraint(Sketcher.Constraint("DistanceX", -1, 1, 46, 2, Q("6.652818 mm")))
sketch1.addConstraint(Sketcher.Constraint("DistanceX", -1, 1, 49, 2, Q("7.529382 mm")))
sketch1.addConstraint(Sketcher.Constraint("DistanceX", -1, 1, 51, 2, Q("8.590078 mm")))
sketch1.addConstraint(Sketcher.Constraint("DistanceX", -1, 1, 52, 2, Q("10.771274 mm")))
sketch1.addConstraint(Sketcher.Constraint("DistanceX", -1, 1, 55, 2, Q("10.022772 mm")))
sketch1.addConstraint(Sketcher.Constraint("DistanceX", -1, 1, 57, 2, Q("10.357664 mm")))
sketch1.addConstraint(Sketcher.Constraint("DistanceX", -1, 1, 69, 2, Q("6.916733 mm")))
sketch1.addConstraint(Sketcher.Constraint("DistanceX", -1, 1, 70, 2, Q("7.466903 mm")))
sketch1.addConstraint(Sketcher.Constraint("DistanceX", -1, 1, 72, 2, Q("5.776023 mm")))
sketch1.addConstraint(Sketcher.Constraint("DistanceX", -1, 1, 73, 2, Q("4.088475 mm")))
pad1 = body.newObject("PartDesign::Pad", "Pad")
pad1.Profile = sketch1
pad1.Length = 8

# Sketch on YZ plane
sketch2 = body.newObject("Sketcher::SketchObject", "Sketch001")
sketch2.AttachmentSupport = (doc.getObject("YZ_Plane"), [""])
sketch2.MapMode = "FlatFace"
sketch2.addGeometry(Part.ArcOfCircle(Part.Circle(Vector(0, 0, 0), Vector(0, 0, 1), 2.9), math.radians(-46), math.radians(46)), False)
sketch2.addGeometry(Part.LineSegment(Vector(2, 2.1, 0), Vector(2, -2.1, 0)), False)
sketch2.addConstraint(Sketcher.Constraint("Coincident", 0, 1, 1, 2))
sketch2.addConstraint(Sketcher.Constraint("Coincident", 1, 1, 0, 2))
sketch2.addConstraint(Sketcher.Constraint("Vertical", 1))
sketch2.addConstraint(Sketcher.Constraint("Coincident", 0, 3, -1, 1))
sketch2.addConstraint(Sketcher.Constraint("Radius", 0, Q("2.9 mm")))
sketch2.addConstraint(Sketcher.Constraint("DistanceY", 1, 2, 1, 1, Q("4.2 mm")))
pad2 = body.newObject("PartDesign::Pad", "Pad001")
pad2.Profile = sketch2
pad2.Length = 8
doc.recompute()

fillet = body.newObject("PartDesign::Fillet", "Fillet")
fillet.Base = (pad2, edges_at(pad2, [
    (8, -8.564, -7.473),
    (8, -7.871, -8.194),
    (8, -7.243, -8.75),
    (8, -6.443, -9.35),
    (8, -5.734, -9.798),
    (8, -4.848, -10.263),
    (8, -4.076, -10.591),
    (8, -3.127, -10.908),
    (8, -2.312, -11.108),
    (8, -1.325, -11.268),
    (8, -0.489, -11.335),
    (8, 0.511, -11.335),
    (8, 1.347, -11.267),
    (8, 2.334, -11.106),
    (8, 3.149, -10.905),
    (8, 4.097, -10.587),
    (8, 4.869, -10.258),
    (8, 5.754, -9.793),
    (8, 6.463, -9.344),
    (8, 7.262, -8.743),
    (8, 7.89, -8.187),
    (8, 8.583, -7.465),
    (8, 9.113, -6.815),
    (8, 9.681, -5.992),
    (8, 10.1, -5.265),
    (8, 10.528, -4.361),
    (8, 10.825, -3.576),
    (8, 11.103, -2.616),
    (8, 11.271, -1.794),
    (8, 11.391, -0.801),
    (8, 11.424, 0.038),
    (8, 11.383, 1.037),
    (8, 11.282, 1.87),
    (8, 11.081, 2.849),
    (8, 10.847, 3.655),
    (8, 10.492, 4.59),
    (8, 10.132, 5.348),
    (8, 9.632, 6.214),
    (8, 9.155, 6.904),
    (8, 8.522, 7.678),
    (8, 7.941, 8.283),
    (8, 7.192, 8.946),
    (8, 6.521, 9.45),
    (8, 5.675, 9.984),
    (8, 4.932, 10.373),
    (8, 4.012, 10.765),
    (8, 3.216, 11.03),
    (8, 2.245, 11.269),
    (8, 1.417, 11.403),
    (8, 0.42, 11.483),
    (8, -0.419, 11.483),
    (8, -1.416, 11.402),
    (8, -2.244, 11.267),
    (8, -3.215, 11.027),
    (8, -4.01, 10.761),
    (8, -4.93, 10.369),
    (8, -5.673, 9.978),
    (8, -6.518, 9.443),
    (8, -7.188, 8.939),
    (8, -7.937, 8.276),
    (8, -8.518, 7.67),
    (8, -9.15, 6.895),
    (8, -9.626, 6.205),
    (8, -10.126, 5.338),
    (8, -10.485, 4.58),
    (8, -10.839, 3.645),
    (8, -11.072, 2.839),
    (8, -11.272, 1.859),
    (8, -11.373, 1.026),
    (8, -11.412, 0.027),
    (8, -11.378, -0.811),
    (8, -11.257, -1.804),
    (8, -11.089, -2.626),
    (8, -10.81, -3.587),
    (8, -10.512, -4.371),
    (8, -10.083, -5.274),
    (8, -9.663, -6.001),
    (8, -9.095, -6.823),
    (8, -2.9, 0),
    (8, 2, 0),
]))
fillet.Radius = 1
doc.recompute()

fillet2 = body.newObject("PartDesign::Fillet", "Fillet001")
fillet2.Base = (fillet, edges_at(fillet, [
    (0, -8.564, -7.473),
    (0, -7.871, -8.194),
    (0, -7.243, -8.75),
    (0, -6.443, -9.35),
    (0, -5.734, -9.798),
    (0, -4.848, -10.263),
    (0, -4.076, -10.591),
    (0, -3.127, -10.908),
    (0, -2.312, -11.108),
    (0, -1.325, -11.268),
    (0, -0.489, -11.335),
    (0, 0.511, -11.335),
    (0, 1.347, -11.267),
    (0, 2.334, -11.106),
    (0, 3.149, -10.905),
    (0, 4.097, -10.587),
    (0, 4.869, -10.258),
    (0, 5.754, -9.793),
    (0, 6.463, -9.344),
    (0, 7.262, -8.743),
    (0, 7.89, -8.187),
    (0, 8.583, -7.465),
    (0, 9.113, -6.815),
    (0, 9.681, -5.992),
    (0, 10.1, -5.265),
    (0, 10.528, -4.361),
    (0, 10.825, -3.576),
    (0, 11.103, -2.616),
    (0, 11.271, -1.794),
    (0, 11.391, -0.801),
    (0, 11.424, 0.038),
    (0, 11.383, 1.037),
    (0, 11.282, 1.87),
    (0, 11.081, 2.849),
    (0, 10.847, 3.655),
    (0, 10.492, 4.59),
    (0, 10.132, 5.348),
    (0, 9.632, 6.214),
    (0, 9.155, 6.904),
    (0, 8.522, 7.678),
    (0, 7.941, 8.283),
    (0, 7.192, 8.946),
    (0, 6.521, 9.45),
    (0, 5.675, 9.984),
    (0, 4.932, 10.373),
    (0, 4.012, 10.765),
    (0, 3.216, 11.03),
    (0, 2.245, 11.269),
    (0, 1.417, 11.403),
    (0, 0.42, 11.483),
    (0, -0.419, 11.483),
    (0, -1.416, 11.402),
    (0, -2.244, 11.267),
    (0, -3.215, 11.027),
    (0, -4.01, 10.761),
    (0, -4.93, 10.369),
    (0, -5.673, 9.978),
    (0, -6.518, 9.443),
    (0, -7.188, 8.939),
    (0, -7.937, 8.276),
    (0, -8.518, 7.67),
    (0, -9.15, 6.895),
    (0, -9.626, 6.205),
    (0, -10.126, 5.338),
    (0, -10.485, 4.58),
    (0, -10.839, 3.645),
    (0, -11.072, 2.839),
    (0, -11.272, 1.859),
    (0, -11.373, 1.026),
    (0, -11.412, 0.027),
    (0, -11.378, -0.811),
    (0, -11.257, -1.804),
    (0, -11.089, -2.626),
    (0, -10.81, -3.587),
    (0, -10.512, -4.371),
    (0, -10.083, -5.274),
    (0, -9.663, -6.001),
    (0, -9.095, -6.823),
    (0, -2.9, 0),
    (0, 2, 0),
]))
fillet2.Radius = 1

doc.recompute()
